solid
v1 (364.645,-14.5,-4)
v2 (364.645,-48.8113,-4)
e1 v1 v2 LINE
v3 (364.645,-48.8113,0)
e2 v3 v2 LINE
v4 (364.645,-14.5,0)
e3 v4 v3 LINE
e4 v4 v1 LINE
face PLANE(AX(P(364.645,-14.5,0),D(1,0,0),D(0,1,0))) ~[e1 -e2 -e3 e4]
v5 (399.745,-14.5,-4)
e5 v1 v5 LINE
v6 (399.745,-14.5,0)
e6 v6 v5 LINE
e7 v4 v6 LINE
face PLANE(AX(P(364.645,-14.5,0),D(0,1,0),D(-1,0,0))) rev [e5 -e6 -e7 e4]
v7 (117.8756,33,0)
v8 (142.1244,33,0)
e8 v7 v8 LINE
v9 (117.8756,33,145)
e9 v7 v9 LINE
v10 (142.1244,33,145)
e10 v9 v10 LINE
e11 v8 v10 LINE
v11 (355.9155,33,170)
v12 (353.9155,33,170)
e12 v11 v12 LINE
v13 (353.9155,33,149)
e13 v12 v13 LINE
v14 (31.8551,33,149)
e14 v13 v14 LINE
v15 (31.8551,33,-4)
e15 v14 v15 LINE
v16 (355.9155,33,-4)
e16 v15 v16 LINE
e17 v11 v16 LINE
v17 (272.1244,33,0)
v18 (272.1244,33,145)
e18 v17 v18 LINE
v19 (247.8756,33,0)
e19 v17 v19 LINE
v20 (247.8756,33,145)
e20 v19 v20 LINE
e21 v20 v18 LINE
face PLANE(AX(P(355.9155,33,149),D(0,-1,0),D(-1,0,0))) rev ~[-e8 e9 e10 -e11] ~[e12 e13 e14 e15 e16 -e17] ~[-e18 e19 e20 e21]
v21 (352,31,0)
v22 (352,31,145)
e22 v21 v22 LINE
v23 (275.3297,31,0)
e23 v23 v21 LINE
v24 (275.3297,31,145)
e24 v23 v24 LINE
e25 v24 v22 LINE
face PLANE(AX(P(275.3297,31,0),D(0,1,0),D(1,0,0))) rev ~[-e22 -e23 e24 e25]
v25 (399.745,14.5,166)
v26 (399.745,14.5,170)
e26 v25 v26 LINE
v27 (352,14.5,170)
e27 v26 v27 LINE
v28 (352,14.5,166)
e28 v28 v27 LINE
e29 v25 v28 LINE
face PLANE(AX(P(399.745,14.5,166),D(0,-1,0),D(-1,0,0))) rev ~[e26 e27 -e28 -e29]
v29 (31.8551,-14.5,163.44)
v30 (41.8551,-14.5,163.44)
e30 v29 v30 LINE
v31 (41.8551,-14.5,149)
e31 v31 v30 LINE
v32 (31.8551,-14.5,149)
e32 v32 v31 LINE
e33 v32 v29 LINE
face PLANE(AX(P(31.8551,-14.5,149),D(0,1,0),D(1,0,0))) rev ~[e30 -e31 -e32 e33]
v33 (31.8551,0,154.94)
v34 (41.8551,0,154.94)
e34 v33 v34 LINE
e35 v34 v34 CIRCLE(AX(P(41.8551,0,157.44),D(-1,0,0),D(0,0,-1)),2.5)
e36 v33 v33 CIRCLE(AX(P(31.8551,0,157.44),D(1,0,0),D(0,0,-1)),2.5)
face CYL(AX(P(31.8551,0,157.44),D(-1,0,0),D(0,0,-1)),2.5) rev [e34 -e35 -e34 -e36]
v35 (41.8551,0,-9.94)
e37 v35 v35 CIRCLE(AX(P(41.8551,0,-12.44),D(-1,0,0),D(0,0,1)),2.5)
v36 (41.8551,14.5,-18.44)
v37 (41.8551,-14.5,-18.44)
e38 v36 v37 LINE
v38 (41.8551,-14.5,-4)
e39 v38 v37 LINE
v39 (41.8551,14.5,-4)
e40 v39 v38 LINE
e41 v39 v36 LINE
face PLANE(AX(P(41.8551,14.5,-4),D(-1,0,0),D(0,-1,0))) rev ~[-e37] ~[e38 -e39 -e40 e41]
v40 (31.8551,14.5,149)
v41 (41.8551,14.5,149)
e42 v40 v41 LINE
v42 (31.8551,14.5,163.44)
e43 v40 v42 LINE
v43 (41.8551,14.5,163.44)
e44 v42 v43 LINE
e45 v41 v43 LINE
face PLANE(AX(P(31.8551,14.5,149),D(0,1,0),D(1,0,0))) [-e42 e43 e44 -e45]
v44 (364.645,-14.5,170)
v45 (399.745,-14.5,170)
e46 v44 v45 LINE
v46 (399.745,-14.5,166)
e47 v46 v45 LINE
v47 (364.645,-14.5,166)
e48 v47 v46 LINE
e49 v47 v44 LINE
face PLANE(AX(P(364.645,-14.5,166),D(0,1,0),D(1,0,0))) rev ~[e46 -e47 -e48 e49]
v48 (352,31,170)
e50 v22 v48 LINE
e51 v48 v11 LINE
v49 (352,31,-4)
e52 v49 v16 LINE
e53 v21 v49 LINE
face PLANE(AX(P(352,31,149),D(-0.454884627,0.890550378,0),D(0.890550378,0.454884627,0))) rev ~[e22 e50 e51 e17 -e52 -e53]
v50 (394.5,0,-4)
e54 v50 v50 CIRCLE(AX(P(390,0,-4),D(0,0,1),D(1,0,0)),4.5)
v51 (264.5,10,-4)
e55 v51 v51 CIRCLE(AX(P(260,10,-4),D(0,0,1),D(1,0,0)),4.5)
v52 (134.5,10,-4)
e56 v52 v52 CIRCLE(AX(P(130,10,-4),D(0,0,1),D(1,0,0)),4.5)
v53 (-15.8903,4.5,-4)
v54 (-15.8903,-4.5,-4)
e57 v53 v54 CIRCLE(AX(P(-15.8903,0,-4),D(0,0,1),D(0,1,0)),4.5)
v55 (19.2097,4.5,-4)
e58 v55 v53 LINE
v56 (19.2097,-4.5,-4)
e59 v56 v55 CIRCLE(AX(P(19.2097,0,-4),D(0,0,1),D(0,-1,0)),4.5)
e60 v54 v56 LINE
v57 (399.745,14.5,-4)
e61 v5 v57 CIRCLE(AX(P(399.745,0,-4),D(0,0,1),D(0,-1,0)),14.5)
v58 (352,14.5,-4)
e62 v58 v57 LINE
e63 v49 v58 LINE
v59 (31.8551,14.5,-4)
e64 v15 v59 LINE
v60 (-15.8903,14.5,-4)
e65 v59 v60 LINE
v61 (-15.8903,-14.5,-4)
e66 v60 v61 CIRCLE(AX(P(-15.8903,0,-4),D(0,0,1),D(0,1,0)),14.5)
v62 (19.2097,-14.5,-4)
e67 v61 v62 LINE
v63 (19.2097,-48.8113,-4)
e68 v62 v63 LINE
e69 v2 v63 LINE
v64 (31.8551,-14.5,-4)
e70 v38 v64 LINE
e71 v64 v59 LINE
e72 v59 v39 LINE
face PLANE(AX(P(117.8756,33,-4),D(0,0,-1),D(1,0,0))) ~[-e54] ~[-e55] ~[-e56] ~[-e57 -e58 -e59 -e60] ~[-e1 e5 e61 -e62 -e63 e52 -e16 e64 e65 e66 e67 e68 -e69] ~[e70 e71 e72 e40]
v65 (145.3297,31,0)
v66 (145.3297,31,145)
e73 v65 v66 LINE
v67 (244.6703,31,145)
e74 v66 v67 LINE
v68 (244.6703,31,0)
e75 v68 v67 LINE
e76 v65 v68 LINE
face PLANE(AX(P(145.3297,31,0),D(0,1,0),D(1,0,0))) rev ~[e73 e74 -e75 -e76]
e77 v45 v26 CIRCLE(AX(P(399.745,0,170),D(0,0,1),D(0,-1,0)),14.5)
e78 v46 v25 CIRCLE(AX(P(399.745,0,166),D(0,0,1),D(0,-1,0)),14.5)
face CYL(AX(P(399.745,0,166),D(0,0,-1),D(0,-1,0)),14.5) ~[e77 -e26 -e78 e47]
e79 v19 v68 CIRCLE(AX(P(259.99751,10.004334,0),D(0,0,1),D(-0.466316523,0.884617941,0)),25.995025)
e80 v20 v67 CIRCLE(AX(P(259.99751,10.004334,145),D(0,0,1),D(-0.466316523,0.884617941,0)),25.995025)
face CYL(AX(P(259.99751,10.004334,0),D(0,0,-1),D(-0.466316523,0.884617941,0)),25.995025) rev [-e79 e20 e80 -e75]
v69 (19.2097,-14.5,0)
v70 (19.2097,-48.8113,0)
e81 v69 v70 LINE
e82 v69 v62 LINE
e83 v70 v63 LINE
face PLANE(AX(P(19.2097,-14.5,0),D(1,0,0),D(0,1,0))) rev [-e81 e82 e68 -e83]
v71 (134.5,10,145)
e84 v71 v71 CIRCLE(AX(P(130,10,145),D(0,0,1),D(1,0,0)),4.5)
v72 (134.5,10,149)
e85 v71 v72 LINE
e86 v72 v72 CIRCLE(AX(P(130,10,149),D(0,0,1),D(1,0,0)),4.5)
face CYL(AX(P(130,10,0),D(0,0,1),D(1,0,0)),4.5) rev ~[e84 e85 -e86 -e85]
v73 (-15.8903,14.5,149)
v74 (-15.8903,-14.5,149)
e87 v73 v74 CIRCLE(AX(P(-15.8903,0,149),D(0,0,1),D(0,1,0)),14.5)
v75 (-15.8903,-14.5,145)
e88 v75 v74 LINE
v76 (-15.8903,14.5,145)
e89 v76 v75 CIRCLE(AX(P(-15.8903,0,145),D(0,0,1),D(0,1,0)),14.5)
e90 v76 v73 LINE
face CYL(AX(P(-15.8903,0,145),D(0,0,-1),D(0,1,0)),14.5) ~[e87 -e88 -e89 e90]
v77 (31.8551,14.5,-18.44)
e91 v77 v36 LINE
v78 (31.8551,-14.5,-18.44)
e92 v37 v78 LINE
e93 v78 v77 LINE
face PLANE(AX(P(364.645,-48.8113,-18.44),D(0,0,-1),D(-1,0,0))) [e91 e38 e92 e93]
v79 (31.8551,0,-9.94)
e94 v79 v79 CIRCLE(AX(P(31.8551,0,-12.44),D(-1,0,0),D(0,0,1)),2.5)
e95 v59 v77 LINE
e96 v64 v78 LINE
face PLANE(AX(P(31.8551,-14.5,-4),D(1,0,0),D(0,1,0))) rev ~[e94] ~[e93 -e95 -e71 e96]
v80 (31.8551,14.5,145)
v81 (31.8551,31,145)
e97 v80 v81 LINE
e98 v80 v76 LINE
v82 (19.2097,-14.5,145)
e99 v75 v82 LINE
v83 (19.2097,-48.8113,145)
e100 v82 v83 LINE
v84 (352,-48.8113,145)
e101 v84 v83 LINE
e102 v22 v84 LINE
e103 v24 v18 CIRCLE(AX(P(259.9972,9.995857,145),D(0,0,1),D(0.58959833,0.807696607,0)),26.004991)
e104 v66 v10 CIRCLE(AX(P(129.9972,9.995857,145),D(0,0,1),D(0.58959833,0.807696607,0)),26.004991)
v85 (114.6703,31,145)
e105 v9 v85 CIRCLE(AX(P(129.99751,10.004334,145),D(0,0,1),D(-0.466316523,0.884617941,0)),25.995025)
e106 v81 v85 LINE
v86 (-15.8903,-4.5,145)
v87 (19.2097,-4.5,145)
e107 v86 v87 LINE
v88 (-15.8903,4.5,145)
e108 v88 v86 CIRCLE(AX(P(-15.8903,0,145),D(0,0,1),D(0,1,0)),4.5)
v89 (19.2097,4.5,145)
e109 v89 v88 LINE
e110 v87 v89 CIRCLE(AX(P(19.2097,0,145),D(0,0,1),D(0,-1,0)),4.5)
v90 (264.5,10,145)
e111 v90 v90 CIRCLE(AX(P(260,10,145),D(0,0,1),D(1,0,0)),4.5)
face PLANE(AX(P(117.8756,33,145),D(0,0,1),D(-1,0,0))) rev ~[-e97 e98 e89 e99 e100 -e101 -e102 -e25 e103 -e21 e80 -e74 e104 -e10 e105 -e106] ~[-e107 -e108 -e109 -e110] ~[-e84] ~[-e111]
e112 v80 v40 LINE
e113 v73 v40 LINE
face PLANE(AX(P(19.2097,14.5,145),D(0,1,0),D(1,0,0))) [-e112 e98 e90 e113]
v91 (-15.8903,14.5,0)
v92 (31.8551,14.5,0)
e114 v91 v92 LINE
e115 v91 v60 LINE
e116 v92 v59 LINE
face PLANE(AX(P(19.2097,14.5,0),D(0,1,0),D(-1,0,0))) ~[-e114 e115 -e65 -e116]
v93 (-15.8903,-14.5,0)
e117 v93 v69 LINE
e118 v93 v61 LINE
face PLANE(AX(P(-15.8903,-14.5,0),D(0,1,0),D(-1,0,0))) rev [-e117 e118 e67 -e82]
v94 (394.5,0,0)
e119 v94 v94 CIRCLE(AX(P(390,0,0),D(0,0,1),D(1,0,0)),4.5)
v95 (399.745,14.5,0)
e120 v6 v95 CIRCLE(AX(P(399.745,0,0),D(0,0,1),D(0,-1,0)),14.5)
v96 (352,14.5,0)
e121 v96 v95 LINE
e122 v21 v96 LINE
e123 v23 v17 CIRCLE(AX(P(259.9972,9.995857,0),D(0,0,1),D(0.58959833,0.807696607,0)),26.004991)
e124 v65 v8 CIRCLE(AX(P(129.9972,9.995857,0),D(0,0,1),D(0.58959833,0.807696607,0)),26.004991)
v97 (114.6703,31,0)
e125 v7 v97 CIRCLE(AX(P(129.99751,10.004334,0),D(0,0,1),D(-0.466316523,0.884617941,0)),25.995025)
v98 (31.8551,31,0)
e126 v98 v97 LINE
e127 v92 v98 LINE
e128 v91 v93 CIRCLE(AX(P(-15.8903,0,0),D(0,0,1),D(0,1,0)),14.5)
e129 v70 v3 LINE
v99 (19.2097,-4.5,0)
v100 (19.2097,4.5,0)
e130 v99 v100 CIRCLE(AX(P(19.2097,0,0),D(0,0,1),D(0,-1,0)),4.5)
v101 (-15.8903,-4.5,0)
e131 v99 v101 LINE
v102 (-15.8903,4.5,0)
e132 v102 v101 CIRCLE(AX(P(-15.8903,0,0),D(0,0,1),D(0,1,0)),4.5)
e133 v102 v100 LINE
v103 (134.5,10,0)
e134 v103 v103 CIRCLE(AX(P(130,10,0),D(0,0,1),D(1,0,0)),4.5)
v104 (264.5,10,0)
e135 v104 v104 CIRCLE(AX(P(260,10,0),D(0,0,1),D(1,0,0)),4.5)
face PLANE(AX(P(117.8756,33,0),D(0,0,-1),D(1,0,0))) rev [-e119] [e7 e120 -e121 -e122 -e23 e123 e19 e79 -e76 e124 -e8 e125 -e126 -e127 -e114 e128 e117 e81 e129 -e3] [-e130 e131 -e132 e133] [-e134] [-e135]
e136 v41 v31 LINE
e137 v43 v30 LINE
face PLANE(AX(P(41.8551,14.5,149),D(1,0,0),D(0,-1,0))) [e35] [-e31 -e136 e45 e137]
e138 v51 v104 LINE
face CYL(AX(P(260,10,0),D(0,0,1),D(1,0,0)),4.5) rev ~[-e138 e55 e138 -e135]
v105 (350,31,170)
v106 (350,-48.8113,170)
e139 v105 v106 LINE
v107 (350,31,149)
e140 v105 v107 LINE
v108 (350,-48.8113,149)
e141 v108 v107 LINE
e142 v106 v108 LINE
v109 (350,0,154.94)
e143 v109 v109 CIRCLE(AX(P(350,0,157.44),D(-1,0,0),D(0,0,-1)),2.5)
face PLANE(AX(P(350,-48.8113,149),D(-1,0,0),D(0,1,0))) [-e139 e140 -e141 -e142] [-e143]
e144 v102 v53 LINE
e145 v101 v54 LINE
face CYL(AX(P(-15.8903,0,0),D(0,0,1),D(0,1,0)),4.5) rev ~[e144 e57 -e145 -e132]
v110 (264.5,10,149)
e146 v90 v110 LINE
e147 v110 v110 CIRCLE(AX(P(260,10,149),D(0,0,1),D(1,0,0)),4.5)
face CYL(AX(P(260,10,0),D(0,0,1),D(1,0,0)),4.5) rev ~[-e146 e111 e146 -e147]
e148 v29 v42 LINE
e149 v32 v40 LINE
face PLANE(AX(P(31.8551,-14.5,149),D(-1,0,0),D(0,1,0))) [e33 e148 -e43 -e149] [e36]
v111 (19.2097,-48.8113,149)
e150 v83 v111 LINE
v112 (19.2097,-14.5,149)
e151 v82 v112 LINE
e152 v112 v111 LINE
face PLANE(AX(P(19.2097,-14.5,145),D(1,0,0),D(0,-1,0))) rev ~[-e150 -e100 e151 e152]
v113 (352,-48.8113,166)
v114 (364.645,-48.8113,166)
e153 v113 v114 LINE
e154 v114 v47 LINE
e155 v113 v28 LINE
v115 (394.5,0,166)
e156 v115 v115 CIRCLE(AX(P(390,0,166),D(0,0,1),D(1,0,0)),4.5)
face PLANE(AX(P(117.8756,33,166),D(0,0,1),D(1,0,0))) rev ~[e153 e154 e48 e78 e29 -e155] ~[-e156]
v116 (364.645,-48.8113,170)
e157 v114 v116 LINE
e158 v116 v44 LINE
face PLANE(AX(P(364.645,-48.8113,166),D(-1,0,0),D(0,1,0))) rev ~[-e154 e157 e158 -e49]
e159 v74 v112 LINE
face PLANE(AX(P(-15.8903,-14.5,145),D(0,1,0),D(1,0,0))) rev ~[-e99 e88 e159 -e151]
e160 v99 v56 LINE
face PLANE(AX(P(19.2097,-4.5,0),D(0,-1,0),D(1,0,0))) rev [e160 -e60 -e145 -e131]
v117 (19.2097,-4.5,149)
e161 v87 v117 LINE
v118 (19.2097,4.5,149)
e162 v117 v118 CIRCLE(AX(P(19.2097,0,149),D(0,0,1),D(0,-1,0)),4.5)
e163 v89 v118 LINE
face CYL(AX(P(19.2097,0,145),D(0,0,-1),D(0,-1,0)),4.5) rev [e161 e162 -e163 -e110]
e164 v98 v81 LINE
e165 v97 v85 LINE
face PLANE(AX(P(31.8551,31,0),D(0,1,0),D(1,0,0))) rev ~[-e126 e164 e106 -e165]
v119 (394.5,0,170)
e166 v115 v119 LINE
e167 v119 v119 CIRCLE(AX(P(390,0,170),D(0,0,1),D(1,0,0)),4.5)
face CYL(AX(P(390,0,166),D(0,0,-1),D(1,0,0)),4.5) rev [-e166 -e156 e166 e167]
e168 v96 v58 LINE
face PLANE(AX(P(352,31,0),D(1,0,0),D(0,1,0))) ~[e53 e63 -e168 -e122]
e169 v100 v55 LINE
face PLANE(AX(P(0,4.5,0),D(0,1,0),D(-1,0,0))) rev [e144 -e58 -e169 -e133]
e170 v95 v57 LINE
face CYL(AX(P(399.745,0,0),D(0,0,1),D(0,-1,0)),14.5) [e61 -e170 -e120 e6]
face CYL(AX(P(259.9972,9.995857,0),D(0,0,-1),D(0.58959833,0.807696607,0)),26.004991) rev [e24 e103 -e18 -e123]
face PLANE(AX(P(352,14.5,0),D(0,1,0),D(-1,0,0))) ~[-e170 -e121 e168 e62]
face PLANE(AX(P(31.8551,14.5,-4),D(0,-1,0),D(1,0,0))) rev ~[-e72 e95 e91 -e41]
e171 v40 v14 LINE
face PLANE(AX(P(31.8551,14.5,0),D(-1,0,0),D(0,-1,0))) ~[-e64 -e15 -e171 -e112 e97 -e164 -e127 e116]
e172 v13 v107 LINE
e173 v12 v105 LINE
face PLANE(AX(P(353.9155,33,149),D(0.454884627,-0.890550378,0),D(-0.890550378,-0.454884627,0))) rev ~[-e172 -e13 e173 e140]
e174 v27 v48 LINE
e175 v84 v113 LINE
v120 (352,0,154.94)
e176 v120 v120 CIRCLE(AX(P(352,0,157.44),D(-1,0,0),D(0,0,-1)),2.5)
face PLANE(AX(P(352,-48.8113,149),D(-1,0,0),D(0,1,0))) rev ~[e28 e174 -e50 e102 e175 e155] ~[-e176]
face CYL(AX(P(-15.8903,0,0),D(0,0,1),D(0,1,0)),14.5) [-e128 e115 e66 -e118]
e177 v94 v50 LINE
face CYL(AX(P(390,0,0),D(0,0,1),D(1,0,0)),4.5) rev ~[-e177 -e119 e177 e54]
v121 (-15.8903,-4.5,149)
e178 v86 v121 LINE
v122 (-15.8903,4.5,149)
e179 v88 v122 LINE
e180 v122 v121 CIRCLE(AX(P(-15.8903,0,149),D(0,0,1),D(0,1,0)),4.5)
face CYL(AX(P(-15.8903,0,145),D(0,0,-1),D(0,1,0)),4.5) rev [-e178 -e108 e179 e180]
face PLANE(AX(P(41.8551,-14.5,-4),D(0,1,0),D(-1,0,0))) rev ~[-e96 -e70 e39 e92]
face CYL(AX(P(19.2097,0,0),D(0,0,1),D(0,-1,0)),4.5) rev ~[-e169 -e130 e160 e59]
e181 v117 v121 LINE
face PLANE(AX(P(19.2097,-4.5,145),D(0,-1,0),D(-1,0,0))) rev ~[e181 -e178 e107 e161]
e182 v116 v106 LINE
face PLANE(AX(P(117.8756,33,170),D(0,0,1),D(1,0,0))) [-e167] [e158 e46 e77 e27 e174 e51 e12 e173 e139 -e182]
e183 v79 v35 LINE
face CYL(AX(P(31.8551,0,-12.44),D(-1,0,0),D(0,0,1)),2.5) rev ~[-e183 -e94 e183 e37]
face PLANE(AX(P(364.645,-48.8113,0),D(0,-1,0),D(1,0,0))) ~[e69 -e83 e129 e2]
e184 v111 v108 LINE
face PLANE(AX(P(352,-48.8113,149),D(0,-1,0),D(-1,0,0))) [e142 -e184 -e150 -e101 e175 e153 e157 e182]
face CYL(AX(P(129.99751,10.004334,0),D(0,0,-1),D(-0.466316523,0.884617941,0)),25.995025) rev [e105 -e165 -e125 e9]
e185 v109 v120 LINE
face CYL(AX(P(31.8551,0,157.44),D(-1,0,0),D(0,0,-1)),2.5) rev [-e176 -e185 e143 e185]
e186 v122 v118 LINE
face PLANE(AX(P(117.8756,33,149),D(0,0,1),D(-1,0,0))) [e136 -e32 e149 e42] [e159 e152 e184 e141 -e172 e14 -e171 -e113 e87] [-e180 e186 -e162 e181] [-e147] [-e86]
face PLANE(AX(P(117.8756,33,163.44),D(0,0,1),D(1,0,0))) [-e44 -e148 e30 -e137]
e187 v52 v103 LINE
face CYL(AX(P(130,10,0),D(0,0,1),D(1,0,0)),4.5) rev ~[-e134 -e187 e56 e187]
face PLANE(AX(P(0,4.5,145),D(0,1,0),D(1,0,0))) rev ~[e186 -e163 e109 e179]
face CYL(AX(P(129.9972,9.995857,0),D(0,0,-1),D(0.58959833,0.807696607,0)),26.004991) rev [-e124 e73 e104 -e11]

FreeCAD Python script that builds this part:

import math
import FreeCAD as App
import Part
import Sketcher

V = App.Vector

doc = App.newDocument("Part")
body = doc.addObject("PartDesign::Body", "Body")
body.AllowCompound = True

# Sketch on XY plane
sketch1 = body.newObject("Sketcher::SketchObject", "Sketch")
sketch1.AttachmentSupport = (doc.getObject("XY_Plane"), [""])
sketch1.MapMode = "FlatFace"
sketch1.addGeometry(Part.ArcOfCircle(Part.Circle(V(129.99751, 10.004334, 0), V(0, 0, 1), 25.995025), math.radians(117.795458), math.radians(126.13011)), False)
sketch1.addGeometry(Part.LineSegment(V(117.8756, 33, 0), V(31.8551, 33, 0)), False)
sketch1.addGeometry(Part.LineSegment(V(31.8551, 33, 0), V(31.8551, 31, 0)), False)
sketch1.addGeometry(Part.LineSegment(V(31.8551, 31, 0), V(114.6703, 31, 0)), False)
sketch1.addGeometry(Part.ArcOfCircle(Part.Circle(V(389.999447, 0.001169, 0), V(0, 0, 1), 35.99871), math.radians(113.556409), math.radians(120.558613)), False)
sketch1.addGeometry(Part.LineSegment(V(375.6125, 33, 0), V(272.1244, 33, 0)), False)
sketch1.addGeometry(Part.ArcOfCircle(Part.Circle(V(259.9972, 9.995857, 0), V(0, 0, 1), 26.004991), math.radians(53.87149), math.radians(62.202942)), False)
sketch1.addGeometry(Part.LineSegment(V(275.3297, 31, 0), V(371.697, 31, 0)), False)
sketch1.addGeometry(Part.ArcOfCircle(Part.Circle(V(259.99751, 10.004334, 0), V(0, 0, 1), 25.995025), math.radians(117.795458), math.radians(126.13011)), False)
sketch1.addGeometry(Part.LineSegment(V(247.8756, 33, 0), V(142.1244, 33, 0)), False)
sketch1.addGeometry(Part.ArcOfCircle(Part.Circle(V(129.9972, 9.995857, 0), V(0, 0, 1), 26.004991), math.radians(53.87149), math.radians(62.202942)), False)
sketch1.addGeometry(Part.LineSegment(V(145.3297, 31, 0), V(244.6703, 31, 0)), False)
sketch1.addConstraint(Sketcher.Constraint("Coincident", 0, 1, 1, 1))
sketch1.addConstraint(Sketcher.Constraint("Coincident", 1, 2, 2, 1))
sketch1.addConstraint(Sketcher.Constraint("Coincident", 2, 2, 3, 1))
sketch1.addConstraint(Sketcher.Constraint("Coincident", 3, 2, 0, 2))
sketch1.addConstraint(Sketcher.Constraint("Coincident", 4, 1, 5, 1))
sketch1.addConstraint(Sketcher.Constraint("Coincident", 5, 2, 6, 2))
sketch1.addConstraint(Sketcher.Constraint("Coincident", 6, 1, 7, 1))
sketch1.addConstraint(Sketcher.Constraint("Coincident", 7, 2, 4, 2))
sketch1.addConstraint(Sketcher.Constraint("Coincident", 8, 1, 9, 1))
sketch1.addConstraint(Sketcher.Constraint("Coincident", 9, 2, 10, 2))
sketch1.addConstraint(Sketcher.Constraint("Coincident", 10, 1, 11, 1))
sketch1.addConstraint(Sketcher.Constraint("Coincident", 11, 2, 8, 2))
sketch1.addConstraint(Sketcher.Constraint("Horizontal", 1))
sketch1.addConstraint(Sketcher.Constraint("Vertical", 2))
sketch1.addConstraint(Sketcher.Constraint("Horizontal", 3))
sketch1.addConstraint(Sketcher.Constraint("Horizontal", 5))
sketch1.addConstraint(Sketcher.Constraint("Horizontal", 7))
sketch1.addConstraint(Sketcher.Constraint("Horizontal", 9))
sketch1.addConstraint(Sketcher.Constraint("Horizontal", 11))
sketch1.addConstraint(Sketcher.Constraint("Equal", 0, 8))
sketch1.addConstraint(Sketcher.Constraint("Equal", 6, 10))
sketch1.addConstraint(Sketcher.Constraint("Horizontal", 0, 3, 8, 3))
sketch1.addConstraint(Sketcher.Constraint("Horizontal", 6, 3, 10, 3))
sketch1.addConstraint(Sketcher.Constraint("Horizontal", 1, 2, 4, 1))
sketch1.addConstraint(Sketcher.Constraint("Horizontal", 3, 2, 6, 1))
sketch1.addConstraint(Sketcher.Constraint("Horizontal", 5, 2, 8, 1))
sketch1.addConstraint(Sketcher.Constraint("Horizontal", 7, 2, 10, 1))
sketch1.addConstraint(Sketcher.Constraint("DistanceY", 2, 2, 2, 1, 2.0))
sketch1.addConstraint(Sketcher.Constraint("DistanceX", 0, 3, 8, 3, 130.0))
sketch1.addConstraint(Sketcher.Constraint("DistanceX", 10, 3, 6, 3, 130.0))
sketch1.addConstraint(Sketcher.Constraint("DistanceY", -1, 1, 0, 1, 33.0))
sketch1.addConstraint(Sketcher.Constraint("Radius", 0, 25.995))
sketch1.addConstraint(Sketcher.Constraint("Radius", 6, 26.005))
sketch1.addConstraint(Sketcher.Constraint("DistanceX", -1, 1, 4, 3, 389.9994))
sketch1.addConstraint(Sketcher.Constraint("Radius", 4, 35.9987))
sketch1.addConstraint(Sketcher.Constraint("DistanceX", 0, 3, 6, 3, 129.9997))
sketch1.addConstraint(Sketcher.Constraint("DistanceX", 5, 2, 5, 1, 103.488))
sketch1.addConstraint(Sketcher.Constraint("DistanceX", 1, 2, 1, 1, 86.0205))
sketch1.addConstraint(Sketcher.Constraint("DistanceX", 3, 1, 3, 2, 82.8152))
sketch1.addConstraint(Sketcher.Constraint("DistanceX", 7, 1, 7, 2, 96.3673))
sketch1.addConstraint(Sketcher.Constraint("DistanceX", 9, 2, 9, 1, 105.7512))
pad1 = body.newObject("PartDesign::Pad", "Pad")
pad1.Profile = sketch1
pad1.Length = 145

# Sketch on XY plane
sketch2 = body.newObject("Sketcher::SketchObject", "Sketch001")
sketch2.AttachmentSupport = (doc.getObject("XY_Plane"), [""])
sketch2.MapMode = "FlatFace"
sketch2.AttachmentOffset = App.Placement(V(0, 0, 145), App.Rotation())
sketch2.addGeometry(Part.LineSegment(V(31.8551, 14.5, 0), V(-15.8903, 14.5, 0)), False)
sketch2.addGeometry(Part.ArcOfCircle(Part.Circle(V(-15.8903, 0, 0), V(0, 0, 1), 14.5), math.radians(90), math.radians(270)), False)
sketch2.addGeometry(Part.LineSegment(V(-15.8903, -14.5, 0), V(19.2097, -14.5, 0)), False)
sketch2.addGeometry(Part.LineSegment(V(19.2097, -14.5, 0), V(19.2097, -48.8113, 0)), False)
sketch2.addGeometry(Part.LineSegment(V(19.2097, -48.8113, 0), V(364.645, -48.8113, 0)), False)
sketch2.addGeometry(Part.LineSegment(V(364.645, -48.8113, 0), V(364.645, -14.5, 0)), False)
sketch2.addGeometry(Part.LineSegment(V(364.645, -14.5, 0), V(399.745, -14.5, 0)), False)
sketch2.addGeometry(Part.ArcOfCircle(Part.Circle(V(399.745, 0, 0), V(0, 0, 1), 14.5), math.radians(-90), math.radians(90)), False)
sketch2.addGeometry(Part.LineSegment(V(399.745, 14.5, 0), V(352, 14.5, 0)), False)
sketch2.addGeometry(Part.LineSegment(V(352, 14.5, 0), V(352, 31, 0)), False)
sketch2.addGeometry(Part.LineSegment(V(352, 31, 0), V(355.9155, 33, 0)), False)
sketch2.addGeometry(Part.LineSegment(V(355.9155, 33, 0), V(31.8551, 33, 0)), False)
sketch2.addGeometry(Part.LineSegment(V(31.8551, 33, 0), V(31.8551, 14.5, 0)), False)
sketch2.addGeometry(Part.LineSegment(V(19.2097, -4.5, 0), V(-15.8903, -4.5, 0)), False)
sketch2.addGeometry(Part.ArcOfCircle(Part.Circle(V(-15.8903, 0, 0), V(0, 0, 1), 4.5), math.radians(90), math.radians(270)), False)
sketch2.addGeometry(Part.LineSegment(V(-15.8903, 4.5, 0), V(19.2097, 4.5, 0)), False)
sketch2.addGeometry(Part.ArcOfCircle(Part.Circle(V(19.2097, 0, 0), V(0, 0, 1), 4.5), math.radians(-90), math.radians(90)), False)
sketch2.addConstraint(Sketcher.Constraint("Tangent", 0, 2, 1, 1))
sketch2.addConstraint(Sketcher.Constraint("Tangent", 1, 2, 2, 1))
sketch2.addConstraint(Sketcher.Constraint("Coincident", 2, 2, 3, 1))
sketch2.addConstraint(Sketcher.Constraint("Coincident", 3, 2, 4, 1))
sketch2.addConstraint(Sketcher.Constraint("Coincident", 4, 2, 5, 1))
sketch2.addConstraint(Sketcher.Constraint("Coincident", 5, 2, 6, 1))
sketch2.addConstraint(Sketcher.Constraint("Tangent", 6, 2, 7, 1))
sketch2.addConstraint(Sketcher.Constraint("Tangent", 7, 2, 8, 1))
sketch2.addConstraint(Sketcher.Constraint("Coincident", 8, 2, 9, 1))
sketch2.addConstraint(Sketcher.Constraint("Coincident", 9, 2, 10, 1))
sketch2.addConstraint(Sketcher.Constraint("Coincident", 10, 2, 11, 1))
sketch2.addConstraint(Sketcher.Constraint("Coincident", 11, 2, 12, 1))
sketch2.addConstraint(Sketcher.Constraint("Coincident", 12, 2, 0, 1))
sketch2.addConstraint(Sketcher.Constraint("Tangent", 13, 2, 14, 2))
sketch2.addConstraint(Sketcher.Constraint("Tangent", 14, 1, 15, 1))
sketch2.addConstraint(Sketcher.Constraint("Tangent", 15, 2, 16, 2))
sketch2.addConstraint(Sketcher.Constraint("Tangent", 16, 1, 13, 1))
sketch2.addConstraint(Sketcher.Constraint("Horizontal", 0))
sketch2.addConstraint(Sketcher.Constraint("Horizontal", 2))
sketch2.addConstraint(Sketcher.Constraint("Vertical", 3))
sketch2.addConstraint(Sketcher.Constraint("Horizontal", 4))
sketch2.addConstraint(Sketcher.Constraint("Vertical", 5))
sketch2.addConstraint(Sketcher.Constraint("Horizontal", 6))
sketch2.addConstraint(Sketcher.Constraint("Horizontal", 8))
sketch2.addConstraint(Sketcher.Constraint("Vertical", 9))
sketch2.addConstraint(Sketcher.Constraint("Horizontal", 11))
sketch2.addConstraint(Sketcher.Constraint("Vertical", 12))
sketch2.addConstraint(Sketcher.Constraint("Horizontal", 13))
sketch2.addConstraint(Sketcher.Constraint("Horizontal", 15))
sketch2.addConstraint(Sketcher.Constraint("Coincident", 14, 3, 1, 3))
sketch2.addConstraint(Sketcher.Constraint("Equal", 1, 7))
sketch2.addConstraint(Sketcher.Constraint("PointOnObject", 1, 3, -1))
sketch2.addConstraint(Sketcher.Constraint("PointOnObject", 7, 3, -1))
sketch2.addConstraint(Sketcher.Constraint("Vertical", 16, 3, 2, 2))
sketch2.addConstraint(Sketcher.Constraint("Equal", 2, 6))
sketch2.addConstraint(Sketcher.Constraint("Radius", 14, 4.5))
sketch2.addConstraint(Sketcher.Constraint("DistanceY", 9, 1, 9, 2, 16.5))
sketch2.addConstraint(Sketcher.Constraint("DistanceY", 1, 2, 13, 2, 10.0))
sketch2.addConstraint(Sketcher.Constraint("DistanceX", 8, 2, 8, 1, 47.745))
sketch2.addConstraint(Sketcher.Constraint("DistanceX", 0, 2, 0, 1, 47.7454))
sketch2.addConstraint(Sketcher.Constraint("DistanceX", 2, 1, 2, 2, 35.1))
sketch2.addConstraint(Sketcher.Constraint("DistanceY", 12, 2, 12, 1, 18.5))
sketch2.addConstraint(Sketcher.Constraint("DistanceX", -1, 1, 8, 2, 352.0))
sketch2.addConstraint(Sketcher.Constraint("DistanceX", 4, 1, 4, 2, 345.4353))
sketch2.addConstraint(Sketcher.Constraint("DistanceX", 11, 2, 11, 1, 324.0604))
sketch2.addConstraint(Sketcher.Constraint("DistanceY", 3, 2, 3, 1, 34.3113))
pad2 = body.newObject("PartDesign::Pad", "Pad001")
pad2.Profile = sketch2
pad2.Length = 4
doc.recompute()

datumplane = body.newObject("PartDesign::Plane", "DatumPlane")
datumplane.AttachmentSupport = (doc.getObject("XY_Plane"), [""])
datumplane.MapMode = "FlatFace"
datumplane.AttachmentOffset = App.Placement(V(0, 0, 72.5), App.Rotation())
mirrored = body.newObject("PartDesign::Mirrored", "Mirrored")
mirrored.Originals = [pad2]
mirrored.MirrorPlane = (datumplane, [""])
body.Tip = mirrored

# Sketch on XY plane
sketch3 = body.newObject("Sketcher::SketchObject", "Sketch002")
sketch3.AttachmentSupport = (doc.getObject("XY_Plane"), [""])
sketch3.MapMode = "FlatFace"
sketch3.addGeometry(Part.Circle(V(130, 10, 0), V(0, 0, 1), 4.5), False)
sketch3.addGeometry(Part.Circle(V(260, 10, 0), V(0, 0, 1), 4.5), False)
sketch3.addConstraint(Sketcher.Constraint("Equal", 0, 1))
sketch3.addConstraint(Sketcher.Constraint("Horizontal", 0, 3, 1, 3))
sketch3.addConstraint(Sketcher.Constraint("Diameter", 0, 9.0))
sketch3.addConstraint(Sketcher.Constraint("DistanceX", -1, 1, 0, 3, 130.0))
sketch3.addConstraint(Sketcher.Constraint("DistanceX", -1, 1, 1, 3, 260.0))
sketch3.addConstraint(Sketcher.Constraint("DistanceY", -1, 1, 0, 3, 10.0))
pocket1 = body.newObject("PartDesign::Pocket", "Pocket")
pocket1.Profile = sketch3
pocket1.Length = 10000
pocket1.Midplane = True

# Sketch on XY plane
sketch4 = body.newObject("Sketcher::SketchObject", "Sketch003")
sketch4.AttachmentSupport = (doc.getObject("XY_Plane"), [""])
sketch4.MapMode = "FlatFace"
sketch4.AttachmentOffset = App.Placement(V(0, 0, 145), App.Rotation())
sketch4.addGeometry(Part.LineSegment(V(355.9155, 33, 0), V(352, 31, 0)), False)
sketch4.addGeometry(Part.LineSegment(V(352, 31, 0), V(371.697, 31, 0)), False)
sketch4.addGeometry(Part.ArcOfCircle(Part.Circle(V(389.999447, 0.001169, 0), V(0, 0, 1), 35.99871), math.radians(113.556409), math.radians(120.558613)), False)
sketch4.addGeometry(Part.LineSegment(V(375.6125, 33, 0), V(355.9155, 33, 0)), False)
sketch4.addConstraint(Sketcher.Constraint("Coincident", 0, 2, 1, 1))
sketch4.addConstraint(Sketcher.Constraint("Coincident", 1, 2, 2, 2))
sketch4.addConstraint(Sketcher.Constraint("Coincident", 2, 1, 3, 1))
sketch4.addConstraint(Sketcher.Constraint("Coincident", 3, 2, 0, 1))
sketch4.addConstraint(Sketcher.Constraint("Horizontal", 1))
sketch4.addConstraint(Sketcher.Constraint("Horizontal", 3))
sketch4.addConstraint(Sketcher.Constraint("Equal", 1, 3))
sketch4.addConstraint(Sketcher.Constraint("DistanceX", -1, 1, 0, 2, 352.0))
sketch4.addConstraint(Sketcher.Constraint("DistanceY", -1, 1, 0, 2, 31.0))
sketch4.addConstraint(Sketcher.Constraint("DistanceY", -1, 1, 2, 1, 33.0))
sketch4.addConstraint(Sketcher.Constraint("Radius", 2, 35.9987))
sketch4.addConstraint(Sketcher.Constraint("DistanceX", 1, 1, 1, 2, 19.697))
sketch4.addConstraint(Sketcher.Constraint("DistanceX", 2, 1, 2, 3, 14.387))
pocket2 = body.newObject("PartDesign::Pocket", "Pocket001")
pocket2.Profile = sketch4
pocket2.Length = 1000
pocket2.Midplane = True

# Sketch on XY plane
sketch5 = body.newObject("Sketcher::SketchObject", "Sketch004")
sketch5.AttachmentSupport = (doc.getObject("XY_Plane"), [""])
sketch5.MapMode = "FlatFace"
sketch5.AttachmentOffset = App.Placement(V(0, 0, 149), App.Rotation())
sketch5.addGeometry(Part.ArcOfCircle(Part.Circle(V(399.745, 0, 0), V(0, 0, 1), 14.5), math.radians(-90), math.radians(90)), False)
sketch5.addGeometry(Part.LineSegment(V(399.745, 14.5, 0), V(352, 14.5, 0)), False)
sketch5.addGeometry(Part.LineSegment(V(352, 14.5, 0), V(352, -48.8113, 0)), False)
sketch5.addGeometry(Part.LineSegment(V(352, -48.8113, 0), V(364.645, -48.8113, 0)), False)
sketch5.addGeometry(Part.LineSegment(V(364.645, -48.8113, 0), V(364.645, -14.5, 0)), False)
sketch5.addGeometry(Part.LineSegment(V(364.645, -14.5, 0), V(399.745, -14.5, 0)), False)
sketch5.addConstraint(Sketcher.Constraint("Tangent", 0, 2, 1, 1))
sketch5.addConstraint(Sketcher.Constraint("Coincident", 1, 2, 2, 1))
sketch5.addConstraint(Sketcher.Constraint("Coincident", 2, 2, 3, 1))
sketch5.addConstraint(Sketcher.Constraint("Coincident", 3, 2, 4, 1))
sketch5.addConstraint(Sketcher.Constraint("Coincident", 4, 2, 5, 1))
sketch5.addConstraint(Sketcher.Constraint("Tangent", 5, 2, 0, 1))
sketch5.addConstraint(Sketcher.Constraint("Horizontal", 1))
sketch5.addConstraint(Sketcher.Constraint("Vertical", 2))
sketch5.addConstraint(Sketcher.Constraint("Horizontal", 3))
sketch5.addConstraint(Sketcher.Constraint("Vertical", 4))
sketch5.addConstraint(Sketcher.Constraint("Horizontal", 5))
sketch5.addConstraint(Sketcher.Constraint("PointOnObject", 0, 3, -1))
sketch5.addConstraint(Sketcher.Constraint("Radius", 0, 14.5))
sketch5.addConstraint(Sketcher.Constraint("DistanceX", 5, 1, 5, 2, 35.1))
sketch5.addConstraint(Sketcher.Constraint("DistanceX", -1, 1, 1, 2, 352.0))
sketch5.addConstraint(Sketcher.Constraint("DistanceX", 1, 2, 1, 1, 47.745))
sketch5.addConstraint(Sketcher.Constraint("DistanceY", 2, 2, 2, 1, 63.3113))
pocket3 = body.newObject("PartDesign::Pocket", "Pocket002")
pocket3.Profile = sketch5
pocket3.Length = 17

# Sketch on XY plane
sketch6 = body.newObject("Sketcher::SketchObject", "Sketch005")
sketch6.AttachmentSupport = (doc.getObject("XY_Plane"), [""])
sketch6.MapMode = "FlatFace"
sketch6.addGeometry(Part.Circle(V(390, 0, 0), V(0, 0, 1), 4.5), False)
sketch6.addConstraint(Sketcher.Constraint("PointOnObject", 0, 3, -1))
sketch6.addConstraint(Sketcher.Constraint("Diameter", 0, 9.0))
sketch6.addConstraint(Sketcher.Constraint("DistanceX", -1, 1, 0, 3, 390.0))
pocket4 = body.newObject("PartDesign::Pocket", "Pocket003")
pocket4.Profile = sketch6
pocket4.Length = 17

# Sketch on XY plane
sketch7 = body.newObject("Sketcher::SketchObject", "Sketch006")
sketch7.AttachmentSupport = (doc.getObject("XY_Plane"), [""])
sketch7.MapMode = "FlatFace"
sketch7.AttachmentOffset = App.Placement(V(0, 0, 149), App.Rotation())
sketch7.addGeometry(Part.LineSegment(V(350, -48.8113, 0), V(352, -48.8113, 0)), False)
sketch7.addGeometry(Part.LineSegment(V(352, -48.8113, 0), V(352, 31, 0)), False)
sketch7.addGeometry(Part.LineSegment(V(352, 31, 0), V(355.9155, 33, 0)), False)
sketch7.addGeometry(Part.LineSegment(V(355.9155, 33, 0), V(353.9155, 33, 0)), False)
sketch7.addGeometry(Part.LineSegment(V(353.9155, 33, 0), V(350, 31, 0)), False)
sketch7.addGeometry(Part.LineSegment(V(350, 31, 0), V(350, -48.8113, 0)), False)
sketch7.addConstraint(Sketcher.Constraint("Coincident", 0, 2, 1, 1))
sketch7.addConstraint(Sketcher.Constraint("Coincident", 1, 2, 2, 1))
sketch7.addConstraint(Sketcher.Constraint("Coincident", 2, 2, 3, 1))
sketch7.addConstraint(Sketcher.Constraint("Coincident", 3, 2, 4, 1))
sketch7.addConstraint(Sketcher.Constraint("Coincident", 4, 2, 5, 1))
sketch7.addConstraint(Sketcher.Constraint("Coincident", 5, 2, 0, 1))
sketch7.addConstraint(Sketcher.Constraint("Horizontal", 0))
sketch7.addConstraint(Sketcher.Constraint("Vertical", 1))
sketch7.addConstraint(Sketcher.Constraint("Horizontal", 3))
sketch7.addConstraint(Sketcher.Constraint("Vertical", 5))
sketch7.addConstraint(Sketcher.Constraint("Parallel", 2, 4))
sketch7.addConstraint(Sketcher.Constraint("Horizontal", 1, 2, 4, 2))
sketch7.addConstraint(Sketcher.Constraint("DistanceX", 0, 1, 0, 2, 2.0))
sketch7.addConstraint(Sketcher.Constraint("DistanceY", 1, 2, 2, 2, 2.0))
sketch7.addConstraint(Sketcher.Constraint("DistanceX", -1, 1, 0, 2, 352.0))
sketch7.addConstraint(Sketcher.Constraint("DistanceY", -1, 1, 1, 2, 31.0))
sketch7.addConstraint(Sketcher.Constraint("DistanceY", 1, 1, 1, 2, 79.8113))
sketch7.addConstraint(Sketcher.Constraint("Distance", 2, 4.3967))
pad3 = body.newObject("PartDesign::Pad", "Pad002")
pad3.Profile = sketch7
pad3.Length = 17

# Sketch on XY plane
sketch8 = body.newObject("Sketcher::SketchObject", "Sketch007")
sketch8.AttachmentSupport = (doc.getObject("XY_Plane"), [""])
sketch8.MapMode = "FlatFace"
sketch8.AttachmentOffset = App.Placement(V(0, 0, 166), App.Rotation())
sketch8.addGeometry(Part.LineSegment(V(350, 31, 0), V(350, -48.8113, 0)), False)
sketch8.addGeometry(Part.LineSegment(V(350, -48.8113, 0), V(364.645, -48.8113, 0)), False)
sketch8.addGeometry(Part.LineSegment(V(364.645, -48.8113, 0), V(364.645, -14.5, 0)), False)
sketch8.addGeometry(Part.LineSegment(V(364.645, -14.5, 0), V(399.745, -14.5, 0)), False)
sketch8.addGeometry(Part.ArcOfCircle(Part.Circle(V(399.745, 0, 0), V(0, 0, 1), 14.5), math.radians(-90), math.radians(90)), False)
sketch8.addGeometry(Part.LineSegment(V(399.745, 14.5, 0), V(352, 14.5, 0)), False)
sketch8.addGeometry(Part.LineSegment(V(352, 14.5, 0), V(352, 31, 0)), False)
sketch8.addGeometry(Part.LineSegment(V(352, 31, 0), V(355.9155, 33, 0)), False)
sketch8.addGeometry(Part.LineSegment(V(355.9155, 33, 0), V(353.9155, 33, 0)), False)
sketch8.addGeometry(Part.LineSegment(V(353.9155, 33, 0), V(350, 31, 0)), False)
sketch8.addGeometry(Part.Circle(V(390, 0, 0), V(0, 0, 1), 4.5), False)
sketch8.addConstraint(Sketcher.Constraint("Coincident", 0, 2, 1, 1))
sketch8.addConstraint(Sketcher.Constraint("Coincident", 1, 2, 2, 1))
sketch8.addConstraint(Sketcher.Constraint("Coincident", 2, 2, 3, 1))
sketch8.addConstraint(Sketcher.Constraint("Tangent", 3, 2, 4, 1))
sketch8.addConstraint(Sketcher.Constraint("Tangent", 4, 2, 5, 1))
sketch8.addConstraint(Sketcher.Constraint("Coincident", 5, 2, 6, 1))
sketch8.addConstraint(Sketcher.Constraint("Coincident", 6, 2, 7, 1))
sketch8.addConstraint(Sketcher.Constraint("Coincident", 7, 2, 8, 1))
sketch8.addConstraint(Sketcher.Constraint("Coincident", 8, 2, 9, 1))
sketch8.addConstraint(Sketcher.Constraint("Coincident", 9, 2, 0, 1))
sketch8.addConstraint(Sketcher.Constraint("Vertical", 0))
sketch8.addConstraint(Sketcher.Constraint("Horizontal", 1))
sketch8.addConstraint(Sketcher.Constraint("Vertical", 2))
sketch8.addConstraint(Sketcher.Constraint("Horizontal", 3))
sketch8.addConstraint(Sketcher.Constraint("Horizontal", 5))
sketch8.addConstraint(Sketcher.Constraint("Vertical", 6))
sketch8.addConstraint(Sketcher.Constraint("Horizontal", 8))
sketch8.addConstraint(Sketcher.Constraint("PointOnObject", 4, 3, -1))
sketch8.addConstraint(Sketcher.Constraint("PointOnObject", 10, 3, -1))
sketch8.addConstraint(Sketcher.Constraint("Parallel", 7, 9))
sketch8.addConstraint(Sketcher.Constraint("Horizontal", 6, 2, 9, 2))
sketch8.addConstraint(Sketcher.Constraint("Diameter", 10, 9.0))
sketch8.addConstraint(Sketcher.Constraint("Radius", 4, 14.5))
sketch8.addConstraint(Sketcher.Constraint("DistanceX", 8, 2, 8, 1, 2.0))
sketch8.addConstraint(Sketcher.Constraint("DistanceX", 3, 1, 3, 2, 35.1))
sketch8.addConstraint(Sketcher.Constraint("DistanceY", 6, 1, 6, 2, 16.5))
sketch8.addConstraint(Sketcher.Constraint("DistanceX", -1, 1, 10, 3, 390.0))
sketch8.addConstraint(Sketcher.Constraint("DistanceX", -1, 1, 0, 2, 350.0))
sketch8.addConstraint(Sketcher.Constraint("DistanceY", -1, 1, 7, 2, 33.0))
sketch8.addConstraint(Sketcher.Constraint("DistanceX", 1, 1, 1, 2, 14.645))
sketch8.addConstraint(Sketcher.Constraint("DistanceY", 0, 2, 0, 1, 79.8113))
sketch8.addConstraint(Sketcher.Constraint("Distance", 7, 4.3967))
pad4 = body.newObject("PartDesign::Pad", "Pad003")
pad4.Profile = sketch8
pad4.Length = 4

# Sketch on XY plane
sketch9 = body.newObject("Sketcher::SketchObject", "Sketch008")
sketch9.AttachmentSupport = (doc.getObject("XY_Plane"), [""])
sketch9.MapMode = "FlatFace"
sketch9.AttachmentOffset = App.Placement(V(0, 0, -4), App.Rotation())
sketch9.addGeometry(Part.LineSegment(V(31.8551, -14.5, 0), V(31.8551, 14.5, 0)), False)
sketch9.addGeometry(Part.LineSegment(V(31.8551, 14.5, 0), V(41.8551, 14.5, 0)), False)
sketch9.addGeometry(Part.LineSegment(V(41.8551, 14.5, 0), V(41.8551, -14.5, 0)), False)
sketch9.addGeometry(Part.LineSegment(V(41.8551, -14.5, 0), V(31.8551, -14.5, 0)), False)
sketch9.addConstraint(Sketcher.Constraint("Coincident", 0, 2, 1, 1))
sketch9.addConstraint(Sketcher.Constraint("Coincident", 1, 2, 2, 1))
sketch9.addConstraint(Sketcher.Constraint("Coincident", 2, 2, 3, 1))
sketch9.addConstraint(Sketcher.Constraint("Coincident", 3, 2, 0, 1))
sketch9.addConstraint(Sketcher.Constraint("Vertical", 0))
sketch9.addConstraint(Sketcher.Constraint("Horizontal", 1))
sketch9.addConstraint(Sketcher.Constraint("Vertical", 2))
sketch9.addConstraint(Sketcher.Constraint("Horizontal", 3))
sketch9.addConstraint(Sketcher.Constraint("DistanceX", 1, 1, 1, 2, 10.0))
sketch9.addConstraint(Sketcher.Constraint("DistanceY", 0, 1, 0, 2, 29.0))
sketch9.addConstraint(Sketcher.Constraint("DistanceY", -1, 1, 0, 2, 14.5))
sketch9.addConstraint(Sketcher.Constraint("DistanceX", -1, 1, 0, 2, 31.855))
pad5 = body.newObject("PartDesign::Pad", "Pad004")
pad5.Profile = sketch9
pad5.Length = 14.44
pad5.Reversed = True

# Sketch on XY plane
sketch10 = body.newObject("Sketcher::SketchObject", "Sketch009")
sketch10.AttachmentSupport = (doc.getObject("XY_Plane"), [""])
sketch10.MapMode = "FlatFace"
sketch10.AttachmentOffset = App.Placement(V(0, 0, 149), App.Rotation())
sketch10.addGeometry(Part.LineSegment(V(31.8551, 14.5, 0), V(31.8551, -14.5, 0)), False)
sketch10.addGeometry(Part.LineSegment(V(31.8551, -14.5, 0), V(41.8551, -14.5, 0)), False)
sketch10.addGeometry(Part.LineSegment(V(41.8551, -14.5, 0), V(41.8551, 14.5, 0)), False)
sketch10.addGeometry(Part.LineSegment(V(41.8551, 14.5, 0), V(31.8551, 14.5, 0)), False)
sketch10.addConstraint(Sketcher.Constraint("Coincident", 0, 2, 1, 1))
sketch10.addConstraint(Sketcher.Constraint("Coincident", 1, 2, 2, 1))
sketch10.addConstraint(Sketcher.Constraint("Coincident", 2, 2, 3, 1))
sketch10.addConstraint(Sketcher.Constraint("Coincident", 3, 2, 0, 1))
sketch10.addConstraint(Sketcher.Constraint("Vertical", 0))
sketch10.addConstraint(Sketcher.Constraint("Horizontal", 1))
sketch10.addConstraint(Sketcher.Constraint("Vertical", 2))
sketch10.addConstraint(Sketcher.Constraint("Horizontal", 3))
sketch10.addConstraint(Sketcher.Constraint("DistanceX", 1, 1, 1, 2, 10.0))
sketch10.addConstraint(Sketcher.Constraint("DistanceY", 0, 2, 0, 1, 29.0))
sketch10.addConstraint(Sketcher.Constraint("DistanceY", 0, 2, -1, 1, 14.5))
sketch10.addConstraint(Sketcher.Constraint("DistanceX", -1, 1, 0, 2, 31.855))
pad6 = body.newObject("PartDesign::Pad", "Pad005")
pad6.Profile = sketch10
pad6.Length = 14.44

# Sketch on YZ plane
sketch11 = body.newObject("Sketcher::SketchObject", "Sketch010")
sketch11.AttachmentSupport = (doc.getObject("YZ_Plane"), [""])
sketch11.MapMode = "FlatFace"
sketch11.AttachmentOffset = App.Placement(V(0, 0, 31.8551), App.Rotation())
sketch11.addGeometry(Part.Circle(V(0, -12.44, 0), V(0, 0, 1), 2.5), False)
sketch11.addConstraint(Sketcher.Constraint("PointOnObject", 0, 3, -2))
sketch11.addConstraint(Sketcher.Constraint("Diameter", 0, 5.0))
sketch11.addConstraint(Sketcher.Constraint("DistanceY", 0, 3, -1, 1, 12.44))
pocket5 = body.newObject("PartDesign::Pocket", "Pocket004")
pocket5.Profile = sketch11
pocket5.Type = "ThroughAll"
pocket5.Reversed = True
doc.recompute()

datumplane2 = body.newObject("PartDesign::Plane", "DatumPlane001")
datumplane2.AttachmentSupport = (doc.getObject("XY_Plane"), [""])
datumplane2.MapMode = "FlatFace"
datumplane2.AttachmentOffset = App.Placement(V(0, 0, 72.5), App.Rotation())
mirrored2 = body.newObject("PartDesign::Mirrored", "Mirrored001")
mirrored2.Originals = [pocket5]
mirrored2.MirrorPlane = (datumplane2, [""])
body.Tip = mirrored2

doc.recompute()
